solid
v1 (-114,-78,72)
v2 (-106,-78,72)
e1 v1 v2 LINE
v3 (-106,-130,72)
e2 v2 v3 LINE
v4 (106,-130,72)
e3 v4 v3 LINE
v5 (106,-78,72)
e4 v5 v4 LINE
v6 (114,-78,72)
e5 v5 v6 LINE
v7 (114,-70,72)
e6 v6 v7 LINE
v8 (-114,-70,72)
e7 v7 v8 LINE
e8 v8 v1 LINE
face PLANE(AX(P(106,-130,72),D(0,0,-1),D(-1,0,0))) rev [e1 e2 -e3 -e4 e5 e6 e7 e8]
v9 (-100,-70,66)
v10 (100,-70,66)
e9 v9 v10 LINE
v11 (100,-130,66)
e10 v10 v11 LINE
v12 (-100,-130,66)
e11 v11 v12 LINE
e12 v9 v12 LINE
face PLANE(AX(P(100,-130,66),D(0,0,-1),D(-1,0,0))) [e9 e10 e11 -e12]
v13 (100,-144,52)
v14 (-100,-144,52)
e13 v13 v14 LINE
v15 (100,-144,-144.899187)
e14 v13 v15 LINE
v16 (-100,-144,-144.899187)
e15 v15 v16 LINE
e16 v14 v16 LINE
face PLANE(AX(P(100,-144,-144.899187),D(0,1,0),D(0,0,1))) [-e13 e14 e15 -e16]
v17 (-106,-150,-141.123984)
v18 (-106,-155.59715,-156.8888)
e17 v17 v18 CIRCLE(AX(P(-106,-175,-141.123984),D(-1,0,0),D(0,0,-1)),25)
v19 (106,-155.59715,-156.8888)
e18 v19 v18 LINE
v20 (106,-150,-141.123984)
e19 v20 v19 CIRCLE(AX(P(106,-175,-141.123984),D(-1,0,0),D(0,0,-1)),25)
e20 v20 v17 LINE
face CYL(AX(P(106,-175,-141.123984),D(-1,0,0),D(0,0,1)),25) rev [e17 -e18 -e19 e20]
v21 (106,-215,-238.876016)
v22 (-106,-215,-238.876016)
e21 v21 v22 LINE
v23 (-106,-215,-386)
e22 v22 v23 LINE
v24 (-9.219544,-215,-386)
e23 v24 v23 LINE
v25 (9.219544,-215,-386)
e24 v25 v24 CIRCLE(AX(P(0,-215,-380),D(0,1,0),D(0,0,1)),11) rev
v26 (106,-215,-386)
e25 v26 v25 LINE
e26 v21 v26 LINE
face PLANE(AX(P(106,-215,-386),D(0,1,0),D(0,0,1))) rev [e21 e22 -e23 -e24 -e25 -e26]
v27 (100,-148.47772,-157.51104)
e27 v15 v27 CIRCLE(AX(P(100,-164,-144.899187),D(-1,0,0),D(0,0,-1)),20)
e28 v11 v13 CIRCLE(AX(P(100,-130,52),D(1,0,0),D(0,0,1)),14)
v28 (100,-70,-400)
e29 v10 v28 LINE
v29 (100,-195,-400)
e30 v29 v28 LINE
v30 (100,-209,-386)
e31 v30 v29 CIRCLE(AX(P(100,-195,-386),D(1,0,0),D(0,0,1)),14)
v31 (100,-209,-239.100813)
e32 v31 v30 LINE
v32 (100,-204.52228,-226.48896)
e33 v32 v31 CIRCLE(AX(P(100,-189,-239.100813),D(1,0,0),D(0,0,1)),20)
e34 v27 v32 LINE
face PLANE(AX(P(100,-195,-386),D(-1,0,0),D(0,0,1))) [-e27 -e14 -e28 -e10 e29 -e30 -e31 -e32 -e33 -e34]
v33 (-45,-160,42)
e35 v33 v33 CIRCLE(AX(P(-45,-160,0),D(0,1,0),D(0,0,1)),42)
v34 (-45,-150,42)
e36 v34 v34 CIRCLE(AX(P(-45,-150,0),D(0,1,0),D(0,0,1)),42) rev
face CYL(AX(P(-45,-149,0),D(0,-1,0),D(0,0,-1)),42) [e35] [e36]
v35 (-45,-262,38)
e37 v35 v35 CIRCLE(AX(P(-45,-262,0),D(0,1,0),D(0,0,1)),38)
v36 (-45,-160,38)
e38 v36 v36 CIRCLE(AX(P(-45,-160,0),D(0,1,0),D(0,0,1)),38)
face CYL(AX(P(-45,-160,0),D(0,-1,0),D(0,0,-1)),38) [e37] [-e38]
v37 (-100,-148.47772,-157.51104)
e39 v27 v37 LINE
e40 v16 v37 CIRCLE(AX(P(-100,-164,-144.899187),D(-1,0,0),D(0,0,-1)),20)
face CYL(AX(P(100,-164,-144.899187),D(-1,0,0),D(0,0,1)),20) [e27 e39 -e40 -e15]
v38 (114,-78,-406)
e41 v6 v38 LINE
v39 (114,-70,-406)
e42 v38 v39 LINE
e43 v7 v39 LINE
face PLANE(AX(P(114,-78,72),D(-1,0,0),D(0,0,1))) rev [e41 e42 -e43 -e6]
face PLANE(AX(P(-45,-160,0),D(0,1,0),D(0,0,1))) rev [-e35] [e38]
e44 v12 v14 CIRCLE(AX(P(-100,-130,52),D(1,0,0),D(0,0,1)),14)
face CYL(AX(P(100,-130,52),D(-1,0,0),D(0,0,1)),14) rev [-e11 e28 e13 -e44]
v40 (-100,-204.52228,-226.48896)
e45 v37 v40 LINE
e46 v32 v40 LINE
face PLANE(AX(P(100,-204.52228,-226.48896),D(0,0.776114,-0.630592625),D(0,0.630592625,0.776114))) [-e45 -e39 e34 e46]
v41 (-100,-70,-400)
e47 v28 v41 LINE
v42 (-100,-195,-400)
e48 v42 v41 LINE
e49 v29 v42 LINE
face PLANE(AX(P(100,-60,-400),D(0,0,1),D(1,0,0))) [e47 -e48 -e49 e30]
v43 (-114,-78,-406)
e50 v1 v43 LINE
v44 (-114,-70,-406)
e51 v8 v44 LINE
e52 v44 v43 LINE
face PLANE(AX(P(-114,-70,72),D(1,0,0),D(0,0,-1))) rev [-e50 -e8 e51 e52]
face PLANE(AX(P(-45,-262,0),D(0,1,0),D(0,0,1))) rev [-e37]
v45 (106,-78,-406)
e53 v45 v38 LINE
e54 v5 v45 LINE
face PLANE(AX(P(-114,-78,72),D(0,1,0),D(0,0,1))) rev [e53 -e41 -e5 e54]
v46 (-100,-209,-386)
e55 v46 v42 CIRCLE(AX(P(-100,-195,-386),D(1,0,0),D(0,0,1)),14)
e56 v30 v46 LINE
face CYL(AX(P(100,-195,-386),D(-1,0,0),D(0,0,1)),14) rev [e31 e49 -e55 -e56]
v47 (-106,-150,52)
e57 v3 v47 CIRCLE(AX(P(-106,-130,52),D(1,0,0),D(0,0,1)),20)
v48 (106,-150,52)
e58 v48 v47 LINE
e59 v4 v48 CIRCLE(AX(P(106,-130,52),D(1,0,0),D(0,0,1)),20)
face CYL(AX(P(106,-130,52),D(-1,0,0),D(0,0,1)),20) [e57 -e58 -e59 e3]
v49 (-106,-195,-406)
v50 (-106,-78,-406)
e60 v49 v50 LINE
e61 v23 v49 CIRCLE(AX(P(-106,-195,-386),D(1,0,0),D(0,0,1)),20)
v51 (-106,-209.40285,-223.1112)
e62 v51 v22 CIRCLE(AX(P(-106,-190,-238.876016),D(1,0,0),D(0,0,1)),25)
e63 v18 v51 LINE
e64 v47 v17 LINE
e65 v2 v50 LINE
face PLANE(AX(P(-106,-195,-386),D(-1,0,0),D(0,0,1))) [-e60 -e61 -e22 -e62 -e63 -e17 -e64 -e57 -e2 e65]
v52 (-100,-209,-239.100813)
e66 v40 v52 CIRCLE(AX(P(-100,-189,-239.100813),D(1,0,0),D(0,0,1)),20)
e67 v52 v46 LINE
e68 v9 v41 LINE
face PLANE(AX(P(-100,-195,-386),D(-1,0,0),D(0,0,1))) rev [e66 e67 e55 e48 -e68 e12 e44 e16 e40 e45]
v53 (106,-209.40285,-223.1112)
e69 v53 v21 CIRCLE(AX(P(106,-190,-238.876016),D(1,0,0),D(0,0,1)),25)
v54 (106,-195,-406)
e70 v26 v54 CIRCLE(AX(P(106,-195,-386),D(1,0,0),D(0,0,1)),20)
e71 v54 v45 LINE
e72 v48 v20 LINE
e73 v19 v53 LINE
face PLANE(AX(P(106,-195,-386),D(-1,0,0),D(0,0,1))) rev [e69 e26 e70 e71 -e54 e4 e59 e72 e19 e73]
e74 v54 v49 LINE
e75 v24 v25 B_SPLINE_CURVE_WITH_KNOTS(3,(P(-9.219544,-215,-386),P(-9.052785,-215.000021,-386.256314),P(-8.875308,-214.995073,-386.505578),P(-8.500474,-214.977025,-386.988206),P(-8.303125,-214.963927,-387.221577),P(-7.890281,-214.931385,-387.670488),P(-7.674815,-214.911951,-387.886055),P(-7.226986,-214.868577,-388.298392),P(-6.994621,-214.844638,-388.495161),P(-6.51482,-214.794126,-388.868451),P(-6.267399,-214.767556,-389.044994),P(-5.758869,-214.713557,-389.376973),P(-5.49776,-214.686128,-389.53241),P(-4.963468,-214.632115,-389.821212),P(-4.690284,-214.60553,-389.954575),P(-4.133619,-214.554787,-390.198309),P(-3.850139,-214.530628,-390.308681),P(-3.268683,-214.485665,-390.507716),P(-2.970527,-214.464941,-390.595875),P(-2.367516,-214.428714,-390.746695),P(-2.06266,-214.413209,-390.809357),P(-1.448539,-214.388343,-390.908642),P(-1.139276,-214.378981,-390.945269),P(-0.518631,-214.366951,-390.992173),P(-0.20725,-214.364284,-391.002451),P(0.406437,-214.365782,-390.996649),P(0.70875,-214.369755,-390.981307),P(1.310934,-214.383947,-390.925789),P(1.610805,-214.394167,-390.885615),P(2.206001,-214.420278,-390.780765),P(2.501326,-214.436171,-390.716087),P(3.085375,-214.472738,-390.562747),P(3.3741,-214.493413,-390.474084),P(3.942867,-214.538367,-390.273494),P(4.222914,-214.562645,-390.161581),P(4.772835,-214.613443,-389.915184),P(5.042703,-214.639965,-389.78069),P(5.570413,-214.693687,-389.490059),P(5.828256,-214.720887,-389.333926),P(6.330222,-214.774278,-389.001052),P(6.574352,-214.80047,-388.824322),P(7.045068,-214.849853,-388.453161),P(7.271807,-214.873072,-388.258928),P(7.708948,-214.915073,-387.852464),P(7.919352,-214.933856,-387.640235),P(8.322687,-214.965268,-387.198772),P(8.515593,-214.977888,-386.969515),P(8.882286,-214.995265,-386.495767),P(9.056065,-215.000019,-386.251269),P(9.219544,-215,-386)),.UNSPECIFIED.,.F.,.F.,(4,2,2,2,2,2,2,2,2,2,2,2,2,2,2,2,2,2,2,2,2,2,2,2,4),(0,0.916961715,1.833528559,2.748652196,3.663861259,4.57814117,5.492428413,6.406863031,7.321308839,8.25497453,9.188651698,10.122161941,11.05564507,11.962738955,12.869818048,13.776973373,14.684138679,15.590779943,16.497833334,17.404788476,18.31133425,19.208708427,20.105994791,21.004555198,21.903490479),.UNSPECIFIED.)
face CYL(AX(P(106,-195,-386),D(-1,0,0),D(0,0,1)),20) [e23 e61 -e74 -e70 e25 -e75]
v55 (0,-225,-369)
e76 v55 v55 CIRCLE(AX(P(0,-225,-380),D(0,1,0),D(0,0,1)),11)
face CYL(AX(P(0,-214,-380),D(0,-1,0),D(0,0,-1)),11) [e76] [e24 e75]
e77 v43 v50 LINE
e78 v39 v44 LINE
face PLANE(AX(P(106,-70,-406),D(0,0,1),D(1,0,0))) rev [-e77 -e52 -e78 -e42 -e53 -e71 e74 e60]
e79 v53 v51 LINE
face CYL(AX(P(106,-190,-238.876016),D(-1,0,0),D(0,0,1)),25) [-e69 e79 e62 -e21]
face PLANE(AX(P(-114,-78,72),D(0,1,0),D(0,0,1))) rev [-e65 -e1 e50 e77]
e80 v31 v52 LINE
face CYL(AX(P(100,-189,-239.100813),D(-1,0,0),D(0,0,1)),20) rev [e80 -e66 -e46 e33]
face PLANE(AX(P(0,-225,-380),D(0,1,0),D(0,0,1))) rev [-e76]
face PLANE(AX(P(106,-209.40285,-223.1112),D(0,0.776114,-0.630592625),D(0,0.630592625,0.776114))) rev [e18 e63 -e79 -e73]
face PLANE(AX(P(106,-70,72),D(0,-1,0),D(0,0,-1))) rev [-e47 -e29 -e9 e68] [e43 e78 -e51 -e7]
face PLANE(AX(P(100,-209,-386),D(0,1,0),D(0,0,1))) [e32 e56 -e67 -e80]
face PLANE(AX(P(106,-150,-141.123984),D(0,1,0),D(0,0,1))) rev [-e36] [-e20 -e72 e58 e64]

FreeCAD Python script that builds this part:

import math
import FreeCAD as App
import Part
import Sketcher
from FreeCAD import Vector
Q = App.Units.Quantity

doc = App.newDocument("Part")
body = doc.addObject("PartDesign::Body", "Body")

# Sketch on YZ plane
sketch1 = doc.addObject("Sketcher::SketchObject", "Sketch")
body.addObject(sketch1)
sketch1.AttachmentSupport = (doc.YZ_Plane, [""])
sketch1.MapMode = "FlatFace"
sketch1.AttachmentOffset = App.Placement(Vector(0, 0, -106), App.Rotation())
sketch1.addGeometry(Part.LineSegment(Vector(-70, -406, 0), Vector(-70, 72, 0)), False)
sketch1.addGeometry(Part.LineSegment(Vector(-70, 72, 0), Vector(-130, 72, 0)), False)
sketch1.addGeometry(Part.ArcOfCircle(Part.Circle(Vector(-130, 52, 0), Vector(0, 0, 1), 20), math.radians(90), math.radians(180)), False)
sketch1.addGeometry(Part.LineSegment(Vector(-150, 52, 0), Vector(-150, -141.123984, 0)), False)
sketch1.addGeometry(Part.ArcOfCircle(Part.Circle(Vector(-175, -141.123984, 0), Vector(0, 0, 1), 25), math.radians(-39.093859), math.radians(0)), False)
sketch1.addGeometry(Part.LineSegment(Vector(-155.59715, -156.8888, 0), Vector(-209.40285, -223.1112, 0)), False)
sketch1.addGeometry(Part.ArcOfCircle(Part.Circle(Vector(-190, -238.876016, 0), Vector(0, 0, 1), 25), math.radians(140.906141), math.radians(180)), False)
sketch1.addGeometry(Part.LineSegment(Vector(-215, -238.876016, 0), Vector(-215, -386, 0)), False)
sketch1.addGeometry(Part.ArcOfCircle(Part.Circle(Vector(-195, -386, 0), Vector(0, 0, 1), 20), math.radians(180), math.radians(270)), False)
sketch1.addGeometry(Part.LineSegment(Vector(-195, -406, 0), Vector(-70, -406, 0)), False)
sketch1.addConstraint(Sketcher.Constraint("Coincident", 0, 2, 1, 1))
sketch1.addConstraint(Sketcher.Constraint("Tangent", 1, 2, 2, 1))
sketch1.addConstraint(Sketcher.Constraint("Tangent", 2, 2, 3, 1))
sketch1.addConstraint(Sketcher.Constraint("Tangent", 3, 2, 4, 2))
sketch1.addConstraint(Sketcher.Constraint("Tangent", 4, 1, 5, 1))
sketch1.addConstraint(Sketcher.Constraint("Tangent", 5, 2, 6, 1))
sketch1.addConstraint(Sketcher.Constraint("Tangent", 6, 2, 7, 1))
sketch1.addConstraint(Sketcher.Constraint("Tangent", 7, 2, 8, 1))
sketch1.addConstraint(Sketcher.Constraint("Tangent", 8, 2, 9, 1))
sketch1.addConstraint(Sketcher.Constraint("Coincident", 9, 2, 0, 1))
sketch1.addConstraint(Sketcher.Constraint("Vertical", 0))
sketch1.addConstraint(Sketcher.Constraint("Horizontal", 1))
sketch1.addConstraint(Sketcher.Constraint("Vertical", 3))
sketch1.addConstraint(Sketcher.Constraint("Vertical", 7))
sketch1.addConstraint(Sketcher.Constraint("Horizontal", 9))
sketch1.addConstraint(Sketcher.Constraint("Equal", 4, 6))
sketch1.addConstraint(Sketcher.Constraint("Equal", 2, 8))
sketch1.addConstraint(Sketcher.Constraint("Radius", 2, Q("20 mm")))
sketch1.addConstraint(Sketcher.Constraint("Radius", 4, Q("25 mm")))
sketch1.addConstraint(Sketcher.Constraint("DistanceX", 1, 2, 1, 1, Q("60 mm")))
sketch1.addConstraint(Sketcher.Constraint("DistanceX", 9, 1, 9, 2, Q("125 mm")))
sketch1.addConstraint(Sketcher.Constraint("DistanceY", 0, 1, 0, 2, Q("478 mm")))
sketch1.addConstraint(Sketcher.Constraint("DistanceX", 2, 3, -1, 1, Q("130 mm")))
sketch1.addConstraint(Sketcher.Constraint("DistanceY", -1, 1, 2, 3, Q("52 mm")))
sketch1.addConstraint(Sketcher.Constraint("DistanceY", 4, 1, -1, 1, Q("156.8888 mm")))
sketch1.addConstraint(Sketcher.Constraint("DistanceY", 5, 2, -1, 1, Q("223.1112 mm")))
pad1 = doc.addObject("PartDesign::Pad", "Pad")
body.addObject(pad1)
pad1.Profile = sketch1
pad1.Length = 212

# Sketch on XY plane
sketch2 = doc.addObject("Sketcher::SketchObject", "Sketch001")
body.addObject(sketch2)
sketch2.AttachmentSupport = (doc.XY_Plane, [""])
sketch2.MapMode = "FlatFace"
sketch2.AttachmentOffset = App.Placement(Vector(0, 0, -406), App.Rotation())
sketch2.addGeometry(Part.LineSegment(Vector(-114, -70, 0), Vector(-114, -78, 0)), False)
sketch2.addGeometry(Part.LineSegment(Vector(-114, -78, 0), Vector(114, -78, 0)), False)
sketch2.addGeometry(Part.LineSegment(Vector(114, -78, 0), Vector(114, -70, 0)), False)
sketch2.addGeometry(Part.LineSegment(Vector(114, -70, 0), Vector(-114, -70, 0)), False)
sketch2.addConstraint(Sketcher.Constraint("Coincident", 0, 2, 1, 1))
sketch2.addConstraint(Sketcher.Constraint("Coincident", 1, 2, 2, 1))
sketch2.addConstraint(Sketcher.Constraint("Coincident", 2, 2, 3, 1))
sketch2.addConstraint(Sketcher.Constraint("Coincident", 3, 2, 0, 1))
sketch2.addConstraint(Sketcher.Constraint("Vertical", 0))
sketch2.addConstraint(Sketcher.Constraint("Horizontal", 1))
sketch2.addConstraint(Sketcher.Constraint("Vertical", 2))
sketch2.addConstraint(Sketcher.Constraint("Horizontal", 3))
sketch2.addConstraint(Sketcher.Constraint("DistanceX", 1, 1, 1, 2, Q("228 mm")))
sketch2.addConstraint(Sketcher.Constraint("DistanceY", 0, 2, 0, 1, Q("8 mm")))
sketch2.addConstraint(Sketcher.Constraint("DistanceX", 0, 2, -1, 1, Q("114 mm")))
sketch2.addConstraint(Sketcher.Constraint("DistanceY", 0, 2, -1, 1, Q("78 mm")))
pad2 = doc.addObject("PartDesign::Pad", "Pad001")
body.addObject(pad2)
pad2.Profile = sketch2
pad2.Length = 478

# Sketch on YZ plane
sketch3 = doc.addObject("Sketcher::SketchObject", "Sketch002")
body.addObject(sketch3)
sketch3.AttachmentSupport = (doc.YZ_Plane, [""])
sketch3.MapMode = "FlatFace"
sketch3.AttachmentOffset = App.Placement(Vector(0, 0, -100), App.Rotation())
sketch3.addGeometry(Part.LineSegment(Vector(-60, -400, 0), Vector(-60, 66, 0)), False)
sketch3.addGeometry(Part.LineSegment(Vector(-60, 66, 0), Vector(-130, 66, 0)), False)
sketch3.addGeometry(Part.ArcOfCircle(Part.Circle(Vector(-130, 52, 0), Vector(0, 0, 1), 14), math.radians(90), math.radians(180)), False)
sketch3.addGeometry(Part.LineSegment(Vector(-144, 52, 0), Vector(-144, -144.899187, 0)), False)
sketch3.addGeometry(Part.ArcOfCircle(Part.Circle(Vector(-164, -144.899187, 0), Vector(0, 0, 1), 20), math.radians(-39.093859), math.radians(0)), False)
sketch3.addGeometry(Part.LineSegment(Vector(-148.47772, -157.51104, 0), Vector(-204.52228, -226.48896, 0)), False)
sketch3.addGeometry(Part.ArcOfCircle(Part.Circle(Vector(-189, -239.100813, 0), Vector(0, 0, 1), 20), math.radians(140.906141), math.radians(180)), False)
sketch3.addGeometry(Part.LineSegment(Vector(-209, -239.100813, 0), Vector(-209, -386, 0)), False)
sketch3.addGeometry(Part.ArcOfCircle(Part.Circle(Vector(-195, -386, 0), Vector(0, 0, 1), 14), math.radians(180), math.radians(270)), False)
sketch3.addGeometry(Part.LineSegment(Vector(-195, -400, 0), Vector(-60, -400, 0)), False)
sketch3.addConstraint(Sketcher.Constraint("Coincident", 0, 2, 1, 1))
sketch3.addConstraint(Sketcher.Constraint("Tangent", 1, 2, 2, 1))
sketch3.addConstraint(Sketcher.Constraint("Tangent", 2, 2, 3, 1))
sketch3.addConstraint(Sketcher.Constraint("Tangent", 3, 2, 4, 2))
sketch3.addConstraint(Sketcher.Constraint("Tangent", 4, 1, 5, 1))
sketch3.addConstraint(Sketcher.Constraint("Tangent", 5, 2, 6, 1))
sketch3.addConstraint(Sketcher.Constraint("Tangent", 6, 2, 7, 1))
sketch3.addConstraint(Sketcher.Constraint("Tangent", 7, 2, 8, 1))
sketch3.addConstraint(Sketcher.Constraint("Tangent", 8, 2, 9, 1))
sketch3.addConstraint(Sketcher.Constraint("Coincident", 9, 2, 0, 1))
sketch3.addConstraint(Sketcher.Constraint("Vertical", 0))
sketch3.addConstraint(Sketcher.Constraint("Horizontal", 1))
sketch3.addConstraint(Sketcher.Constraint("Vertical", 3))
sketch3.addConstraint(Sketcher.Constraint("Vertical", 7))
sketch3.addConstraint(Sketcher.Constraint("Horizontal", 9))
sketch3.addConstraint(Sketcher.Constraint("Equal", 4, 6))
sketch3.addConstraint(Sketcher.Constraint("Equal", 2, 8))
sketch3.addConstraint(Sketcher.Constraint("Radius", 2, Q("14 mm")))
sketch3.addConstraint(Sketcher.Constraint("Radius", 4, Q("20 mm")))
sketch3.addConstraint(Sketcher.Constraint("DistanceX", 1, 2, 1, 1, Q("70 mm")))
sketch3.addConstraint(Sketcher.Constraint("DistanceX", 9, 1, 9, 2, Q("135 mm")))
sketch3.addConstraint(Sketcher.Constraint("DistanceY", 0, 1, 0, 2, Q("466 mm")))
sketch3.addConstraint(Sketcher.Constraint("DistanceX", 2, 3, -1, 1, Q("130 mm")))
sketch3.addConstraint(Sketcher.Constraint("DistanceY", -1, 1, 2, 3, Q("52 mm")))
sketch3.addConstraint(Sketcher.Constraint("DistanceY", 3, 2, 3, 1, Q("196.899187 mm")))
sketch3.addConstraint(Sketcher.Constraint("DistanceY", 7, 2, 7, 1, Q("146.899187 mm")))
pocket1 = doc.addObject("PartDesign::Pocket", "Pocket")
body.addObject(pocket1)
pocket1.Profile = sketch3
pocket1.Length = 200
pocket1.Reversed = True

# Sketch on XZ plane
sketch4 = doc.addObject("Sketcher::SketchObject", "Sketch003")
body.addObject(sketch4)
sketch4.AttachmentSupport = (doc.XZ_Plane, [""])
sketch4.MapMode = "FlatFace"
sketch4.AttachmentOffset = App.Placement(Vector(0, 0, 225), App.Rotation())
sketch4.addGeometry(Part.Circle(Vector(0, -380, 0), Vector(0, 0, 1), 11), False)
sketch4.addConstraint(Sketcher.Constraint("PointOnObject", 0, 3, -2))
sketch4.addConstraint(Sketcher.Constraint("Diameter", 0, Q("22 mm")))
sketch4.addConstraint(Sketcher.Constraint("DistanceY", 0, 3, -1, 1, Q("380 mm")))
pad3 = doc.addObject("PartDesign::Pad", "Pad002")
body.addObject(pad3)
pad3.Profile = sketch4
pad3.Length = 11
pad3.Reversed = True

# Sketch on XZ plane
sketch5 = doc.addObject("Sketcher::SketchObject", "Sketch004")
body.addObject(sketch5)
sketch5.AttachmentSupport = (doc.XZ_Plane, [""])
sketch5.MapMode = "FlatFace"
sketch5.AttachmentOffset = App.Placement(Vector(0, 0, 160), App.Rotation())
sketch5.addGeometry(Part.Circle(Vector(-45, 0, 0), Vector(0, 0, 1), 42), False)
sketch5.addConstraint(Sketcher.Constraint("PointOnObject", 0, 3, -1))
sketch5.addConstraint(Sketcher.Constraint("Diameter", 0, Q("84 mm")))
sketch5.addConstraint(Sketcher.Constraint("DistanceX", 0, 3, -1, 1, Q("45 mm")))
pad4 = doc.addObject("PartDesign::Pad", "Pad003")
body.addObject(pad4)
pad4.Profile = sketch5
pad4.Length = 11
pad4.Reversed = True

# Sketch on XZ plane
sketch6 = doc.addObject("Sketcher::SketchObject", "Sketch005")
body.addObject(sketch6)
sketch6.AttachmentSupport = (doc.XZ_Plane, [""])
sketch6.MapMode = "FlatFace"
sketch6.AttachmentOffset = App.Placement(Vector(0, 0, 262), App.Rotation())
sketch6.addGeometry(Part.Circle(Vector(-45, 0, 0), Vector(0, 0, 1), 38), False)
sketch6.addConstraint(Sketcher.Constraint("PointOnObject", 0, 3, -1))
sketch6.addConstraint(Sketcher.Constraint("Diameter", 0, Q("76 mm")))
sketch6.addConstraint(Sketcher.Constraint("DistanceX", 0, 3, -1, 1, Q("45 mm")))
pad5 = doc.addObject("PartDesign::Pad", "Pad004")
body.addObject(pad5)
pad5.Profile = sketch6
pad5.Length = 102
pad5.Reversed = True

doc.recompute()
